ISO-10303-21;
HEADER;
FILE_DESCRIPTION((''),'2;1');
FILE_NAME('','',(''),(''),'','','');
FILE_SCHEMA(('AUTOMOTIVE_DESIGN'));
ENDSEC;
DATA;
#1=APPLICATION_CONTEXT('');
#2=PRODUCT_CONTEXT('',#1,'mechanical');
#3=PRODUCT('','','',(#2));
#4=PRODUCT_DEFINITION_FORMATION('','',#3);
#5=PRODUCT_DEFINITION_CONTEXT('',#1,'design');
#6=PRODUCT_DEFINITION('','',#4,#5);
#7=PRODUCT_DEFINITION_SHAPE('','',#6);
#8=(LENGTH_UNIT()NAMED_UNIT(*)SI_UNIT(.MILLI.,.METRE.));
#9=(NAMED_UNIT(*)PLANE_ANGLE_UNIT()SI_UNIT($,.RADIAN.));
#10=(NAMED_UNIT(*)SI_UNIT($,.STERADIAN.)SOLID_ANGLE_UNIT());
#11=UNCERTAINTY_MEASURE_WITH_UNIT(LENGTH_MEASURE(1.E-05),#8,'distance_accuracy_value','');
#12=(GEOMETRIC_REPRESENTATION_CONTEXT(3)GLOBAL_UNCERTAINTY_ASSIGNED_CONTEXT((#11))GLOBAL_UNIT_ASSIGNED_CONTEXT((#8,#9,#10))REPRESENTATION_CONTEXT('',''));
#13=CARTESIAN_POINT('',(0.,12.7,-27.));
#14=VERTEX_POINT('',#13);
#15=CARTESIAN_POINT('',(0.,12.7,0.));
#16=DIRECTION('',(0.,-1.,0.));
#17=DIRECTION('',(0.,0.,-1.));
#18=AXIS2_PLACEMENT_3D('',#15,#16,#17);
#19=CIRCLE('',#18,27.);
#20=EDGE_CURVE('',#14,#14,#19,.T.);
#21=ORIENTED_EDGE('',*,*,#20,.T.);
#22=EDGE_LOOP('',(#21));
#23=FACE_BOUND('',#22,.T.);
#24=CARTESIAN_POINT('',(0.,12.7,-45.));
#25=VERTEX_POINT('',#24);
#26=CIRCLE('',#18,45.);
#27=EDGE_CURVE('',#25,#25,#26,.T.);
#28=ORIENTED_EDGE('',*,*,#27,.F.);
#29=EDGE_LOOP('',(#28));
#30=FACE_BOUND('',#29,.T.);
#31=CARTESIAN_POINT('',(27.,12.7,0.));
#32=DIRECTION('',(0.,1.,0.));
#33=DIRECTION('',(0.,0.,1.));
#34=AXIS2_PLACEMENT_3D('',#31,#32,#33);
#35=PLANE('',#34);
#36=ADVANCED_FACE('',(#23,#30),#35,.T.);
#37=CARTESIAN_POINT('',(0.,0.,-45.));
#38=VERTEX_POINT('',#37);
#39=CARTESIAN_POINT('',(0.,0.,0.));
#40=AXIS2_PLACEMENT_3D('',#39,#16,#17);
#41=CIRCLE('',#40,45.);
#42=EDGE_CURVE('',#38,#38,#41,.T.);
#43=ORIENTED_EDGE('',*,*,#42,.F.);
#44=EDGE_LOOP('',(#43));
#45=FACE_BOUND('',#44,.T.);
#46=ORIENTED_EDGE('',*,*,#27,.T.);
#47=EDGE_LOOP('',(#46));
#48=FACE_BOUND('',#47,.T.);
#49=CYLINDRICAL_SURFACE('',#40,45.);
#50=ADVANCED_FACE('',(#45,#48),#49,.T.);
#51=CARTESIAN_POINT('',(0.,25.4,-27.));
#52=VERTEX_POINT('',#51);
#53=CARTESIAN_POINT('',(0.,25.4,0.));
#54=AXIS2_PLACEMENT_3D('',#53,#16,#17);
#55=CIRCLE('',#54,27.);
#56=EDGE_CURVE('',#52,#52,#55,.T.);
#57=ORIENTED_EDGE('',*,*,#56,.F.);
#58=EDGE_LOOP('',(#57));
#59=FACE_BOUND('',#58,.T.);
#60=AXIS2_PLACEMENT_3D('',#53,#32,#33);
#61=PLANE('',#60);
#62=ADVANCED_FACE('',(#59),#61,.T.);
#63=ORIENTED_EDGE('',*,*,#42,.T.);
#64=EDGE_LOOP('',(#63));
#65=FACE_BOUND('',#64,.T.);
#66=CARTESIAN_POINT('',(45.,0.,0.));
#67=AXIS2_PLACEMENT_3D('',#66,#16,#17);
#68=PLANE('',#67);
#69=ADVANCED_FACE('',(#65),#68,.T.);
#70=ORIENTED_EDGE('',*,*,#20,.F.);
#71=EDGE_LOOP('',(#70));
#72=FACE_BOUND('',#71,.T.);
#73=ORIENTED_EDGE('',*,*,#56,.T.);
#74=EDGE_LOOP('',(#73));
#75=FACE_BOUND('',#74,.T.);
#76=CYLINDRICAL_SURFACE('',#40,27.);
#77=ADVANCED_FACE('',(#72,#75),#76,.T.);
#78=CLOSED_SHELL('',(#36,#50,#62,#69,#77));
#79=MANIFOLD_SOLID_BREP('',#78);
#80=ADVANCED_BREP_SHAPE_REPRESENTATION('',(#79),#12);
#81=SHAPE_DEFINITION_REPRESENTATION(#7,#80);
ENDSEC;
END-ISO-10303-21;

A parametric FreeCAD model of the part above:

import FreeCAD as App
import Part
import Sketcher

V = App.Vector
Q = App.Units.Quantity


def add_polygon(sketch, points):
    """Adds a closed chain of lines whose ends are joined by coincident constraints."""
    first, n = sketch.GeometryCount, len(points)
    for a, b in zip(points, points[1:] + points[:1]):
        sketch.addGeometry(Part.LineSegment(App.Vector(*a, 0), App.Vector(*b, 0)), False)
    for i in range(n):
        sketch.addConstraint(Sketcher.Constraint("Coincident", first + i, 2, first + (i + 1) % n, 1))

doc = App.newDocument("Part")
body = doc.addObject("PartDesign::Body", "Body")

# Sketch on XY plane
sketch1 = doc.addObject("Sketcher::SketchObject", "Sketch")
body.addObject(sketch1)
sketch1.AttachmentSupport = (doc.XY_Plane, [""])
sketch1.MapMode = "FlatFace"
add_polygon(sketch1, [(0, 25.4), (0, 0), (45, 0), (45, 12.7), (27, 12.7), (27, 25.4)])  # lines 0-5
sketch1.addConstraint(Sketcher.Constraint("Vertical", 0))
sketch1.addConstraint(Sketcher.Constraint("Horizontal", 1))
sketch1.addConstraint(Sketcher.Constraint("Vertical", 2))
sketch1.addConstraint(Sketcher.Constraint("Horizontal", 3))
sketch1.addConstraint(Sketcher.Constraint("Vertical", 4))
sketch1.addConstraint(Sketcher.Constraint("Horizontal", 5))
sketch1.addConstraint(Sketcher.Constraint("Coincident", 0, 2, -1, 1))
sketch1.addConstraint(Sketcher.Constraint("Equal", 2, 4))
sketch1.addConstraint(Sketcher.Constraint("DistanceX", 1, 1, 1, 2, Q("45 mm")))
sketch1.addConstraint(Sketcher.Constraint("DistanceX", 3, 2, 3, 1, Q("18 mm")))
sketch1.addConstraint(Sketcher.Constraint("DistanceY", 0, 2, 0, 1, Q("25.4 mm")))
revolution = doc.addObject("PartDesign::Revolution", "Revolution")
body.addObject(revolution)
revolution.Profile = sketch1
revolution.ReferenceAxis = (sketch1, ["V_Axis"])
revolution.Angle = 360

doc.recompute()
